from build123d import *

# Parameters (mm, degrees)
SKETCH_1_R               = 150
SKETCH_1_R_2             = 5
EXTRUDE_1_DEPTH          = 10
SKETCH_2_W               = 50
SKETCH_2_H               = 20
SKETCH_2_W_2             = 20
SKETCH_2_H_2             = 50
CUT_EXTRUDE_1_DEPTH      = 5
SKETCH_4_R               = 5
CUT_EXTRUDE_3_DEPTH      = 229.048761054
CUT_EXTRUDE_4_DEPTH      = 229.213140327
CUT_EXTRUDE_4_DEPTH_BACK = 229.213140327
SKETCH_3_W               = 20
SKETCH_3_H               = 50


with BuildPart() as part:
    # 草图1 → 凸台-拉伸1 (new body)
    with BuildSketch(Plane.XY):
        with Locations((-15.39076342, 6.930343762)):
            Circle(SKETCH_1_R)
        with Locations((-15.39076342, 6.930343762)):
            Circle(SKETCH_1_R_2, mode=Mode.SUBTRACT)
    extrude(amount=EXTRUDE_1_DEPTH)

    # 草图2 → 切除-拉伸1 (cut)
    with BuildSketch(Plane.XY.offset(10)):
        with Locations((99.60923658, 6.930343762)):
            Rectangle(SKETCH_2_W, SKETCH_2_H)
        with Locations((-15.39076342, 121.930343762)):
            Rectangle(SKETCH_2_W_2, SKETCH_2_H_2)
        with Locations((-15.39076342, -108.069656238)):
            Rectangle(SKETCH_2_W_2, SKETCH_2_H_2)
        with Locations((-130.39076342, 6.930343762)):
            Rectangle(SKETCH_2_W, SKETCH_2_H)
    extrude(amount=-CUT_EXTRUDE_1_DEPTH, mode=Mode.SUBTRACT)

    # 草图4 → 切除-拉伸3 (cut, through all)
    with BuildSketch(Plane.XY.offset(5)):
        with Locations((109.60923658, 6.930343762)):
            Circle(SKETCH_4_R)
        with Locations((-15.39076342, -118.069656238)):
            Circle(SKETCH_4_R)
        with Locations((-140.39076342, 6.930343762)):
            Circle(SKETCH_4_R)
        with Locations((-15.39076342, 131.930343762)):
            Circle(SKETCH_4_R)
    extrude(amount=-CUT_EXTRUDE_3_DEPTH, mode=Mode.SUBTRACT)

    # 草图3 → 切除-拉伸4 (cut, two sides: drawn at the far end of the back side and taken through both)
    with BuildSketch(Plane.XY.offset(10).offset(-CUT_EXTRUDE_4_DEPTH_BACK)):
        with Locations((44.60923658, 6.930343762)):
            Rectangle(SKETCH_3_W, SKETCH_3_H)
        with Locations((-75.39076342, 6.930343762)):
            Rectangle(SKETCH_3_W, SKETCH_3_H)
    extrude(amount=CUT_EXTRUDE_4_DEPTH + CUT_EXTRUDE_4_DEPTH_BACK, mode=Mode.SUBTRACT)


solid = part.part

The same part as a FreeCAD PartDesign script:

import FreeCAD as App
import Part
import Sketcher
from FreeCAD import Vector

doc = App.newDocument("Part")
body = doc.addObject("PartDesign::Body", "Body")

# Sketch on XY plane
sketch1 = doc.addObject("Sketcher::SketchObject", "Sketch")
body.addObject(sketch1)
sketch1.AttachmentSupport = (doc.XY_Plane, [""])
sketch1.MapMode = "FlatFace"
sketch1.addGeometry([
    Part.Circle(Vector(-15, 7, 0), Vector(0, 0, 1), 150),
    Part.Circle(Vector(-15, 7, 0), Vector(0, 0, 1), 5),
], False)
sketch1.addConstraint([
    Sketcher.Constraint("Coincident", 1, 3, 0, 3),
    Sketcher.Constraint("Diameter", 0, 300.0),
    Sketcher.Constraint("Diameter", 1, 10.0),
    Sketcher.Constraint("DistanceX", 0, 3, -1, 1, 15.390763),
    Sketcher.Constraint("DistanceY", -1, 1, 0, 3, 6.930344),
])
pad1 = doc.addObject("PartDesign::Pad", "Pad")
body.addObject(pad1)
pad1.Profile = sketch1
pad1.Length = 10

# Sketch on XY plane
sketch2 = doc.addObject("Sketcher::SketchObject", "Sketch001")
body.addObject(sketch2)
sketch2.AttachmentSupport = (doc.XY_Plane, [""])
sketch2.MapMode = "FlatFace"
sketch2.AttachmentOffset = App.Placement(Vector(0, 0, 10), App.Rotation())
sketch2.addGeometry([
    Part.LineSegment(Vector(75, 17, 0), Vector(75, -3, 0)),  # 0
    Part.LineSegment(Vector(75, -3, 0), Vector(125, -3, 0)),  # 1
    Part.LineSegment(Vector(125, -3, 0), Vector(125, 17, 0)),  # 2
    Part.LineSegment(Vector(125, 17, 0), Vector(75, 17, 0)),  # 3
    Part.LineSegment(Vector(-25, 147, 0), Vector(-25, 97, 0)),  # 4
    Part.LineSegment(Vector(-25, 97, 0), Vector(-5, 97, 0)),  # 5
    Part.LineSegment(Vector(-5, 97, 0), Vector(-5, 147, 0)),  # 6
    Part.LineSegment(Vector(-5, 147, 0), Vector(-25, 147, 0)),  # 7
    Part.LineSegment(Vector(-25, -83, 0), Vector(-25, -133, 0)),  # 8
    Part.LineSegment(Vector(-25, -133, 0), Vector(-5, -133, 0)),  # 9
    Part.LineSegment(Vector(-5, -133, 0), Vector(-5, -83, 0)),  # 10
    Part.LineSegment(Vector(-5, -83, 0), Vector(-25, -83, 0)),  # 11
    Part.LineSegment(Vector(-155, 17, 0), Vector(-155, -3, 0)),  # 12
    Part.LineSegment(Vector(-155, -3, 0), Vector(-105, -3, 0)),  # 13
    Part.LineSegment(Vector(-105, -3, 0), Vector(-105, 17, 0)),  # 14
    Part.LineSegment(Vector(-105, 17, 0), Vector(-155, 17, 0)),  # 15
], False)
sketch2.addConstraint([
    Sketcher.Constraint("Coincident", 0, 2, 1, 1),
    Sketcher.Constraint("Coincident", 1, 2, 2, 1),
    Sketcher.Constraint("Coincident", 2, 2, 3, 1),
    Sketcher.Constraint("Coincident", 3, 2, 0, 1),
    Sketcher.Constraint("Coincident", 4, 2, 5, 1),
    Sketcher.Constraint("Coincident", 5, 2, 6, 1),
    Sketcher.Constraint("Coincident", 6, 2, 7, 1),
    Sketcher.Constraint("Coincident", 7, 2, 4, 1),
    Sketcher.Constraint("Coincident", 8, 2, 9, 1),
    Sketcher.Constraint("Coincident", 9, 2, 10, 1),
    Sketcher.Constraint("Coincident", 10, 2, 11, 1),
    Sketcher.Constraint("Coincident", 11, 2, 8, 1),
    Sketcher.Constraint("Coincident", 12, 2, 13, 1),
    Sketcher.Constraint("Coincident", 13, 2, 14, 1),
    Sketcher.Constraint("Coincident", 14, 2, 15, 1),
    Sketcher.Constraint("Coincident", 15, 2, 12, 1),
    Sketcher.Constraint("Vertical", 0),
    Sketcher.Constraint("Horizontal", 1),
    Sketcher.Constraint("Vertical", 2),
    Sketcher.Constraint("Horizontal", 3),
    Sketcher.Constraint("Vertical", 4),
    Sketcher.Constraint("Horizontal", 5),
    Sketcher.Constraint("Vertical", 6),
    Sketcher.Constraint("Horizontal", 7),
    Sketcher.Constraint("Vertical", 8),
    Sketcher.Constraint("Horizontal", 9),
    Sketcher.Constraint("Vertical", 10),
    Sketcher.Constraint("Horizontal", 11),
    Sketcher.Constraint("Vertical", 12),
    Sketcher.Constraint("Horizontal", 13),
    Sketcher.Constraint("Vertical", 14),
    Sketcher.Constraint("Horizontal", 15),
    Sketcher.Constraint("Horizontal", 1, 2, 12, 2),
    Sketcher.Constraint("Horizontal", 3, 2, 14, 2),
    Sketcher.Constraint("Vertical", 7, 2, 8, 2),
    Sketcher.Constraint("Vertical", 6, 2, 9, 2),
    Sketcher.Constraint("Equal", 3, 13),
    Sketcher.Constraint("Equal", 11, 0),
    Sketcher.Constraint("Equal", 15, 4),
    Sketcher.Constraint("Equal", 6, 8),
    Sketcher.Constraint("DistanceX", 1, 1, 1, 2, 50.0),
    Sketcher.Constraint("DistanceX", 5, 1, 5, 2, 20.0),
    Sketcher.Constraint("DistanceX", 4, 2, 3, 2, 100.0),
    Sketcher.Constraint("DistanceY", 3, 2, 4, 2, 80.0),
    Sketcher.Constraint("DistanceY", 8, 2, 0, 2, 130.0),
    Sketcher.Constraint("DistanceX", 12, 2, 11, 2, 130.0),
    Sketcher.Constraint("DistanceX", -1, 1, 0, 2, 74.609237),
    Sketcher.Constraint("DistanceY", 0, 2, -1, 1, 3.069656),
])
pocket1 = doc.addObject("PartDesign::Pocket", "Pocket")
body.addObject(pocket1)
pocket1.Profile = sketch2
pocket1.Length = 5

# Sketch on XY plane
sketch3 = doc.addObject("Sketcher::SketchObject", "Sketch002")
body.addObject(sketch3)
sketch3.AttachmentSupport = (doc.XY_Plane, [""])
sketch3.MapMode = "FlatFace"
sketch3.AttachmentOffset = App.Placement(Vector(0, 0, 5), App.Rotation())
sketch3.addGeometry([
    Part.Circle(Vector(110, 7, 0), Vector(0, 0, 1), 5),
    Part.Circle(Vector(-15, -118, 0), Vector(0, 0, 1), 5),
    Part.Circle(Vector(-140, 7, 0), Vector(0, 0, 1), 5),
    Part.Circle(Vector(-15, 132, 0), Vector(0, 0, 1), 5),
], False)
sketch3.addConstraint([
    Sketcher.Constraint("Equal", 0, 1),
    Sketcher.Constraint("Equal", 1, 2),
    Sketcher.Constraint("Equal", 2, 3),
    Sketcher.Constraint("Horizontal", 0, 3, 2, 3),
    Sketcher.Constraint("Vertical", 1, 3, 3, 3),
    Sketcher.Constraint("Diameter", 0, 10.0),
    Sketcher.Constraint("DistanceX", 1, 3, 0, 3, 125.0),
    Sketcher.Constraint("DistanceY", 1, 3, 0, 3, 125.0),
    Sketcher.Constraint("DistanceX", 2, 3, 1, 3, 125.0),
    Sketcher.Constraint("DistanceY", 0, 3, 3, 3, 125.0),
    Sketcher.Constraint("DistanceX", -1, 1, 0, 3, 109.609237),
    Sketcher.Constraint("DistanceY", -1, 1, 0, 3, 6.930344),
])
pocket2 = doc.addObject("PartDesign::Pocket", "Pocket001")
body.addObject(pocket2)
pocket2.Profile = sketch3
pocket2.Type = "ThroughAll"

# Sketch on XY plane
sketch4 = doc.addObject("Sketcher::SketchObject", "Sketch003")
body.addObject(sketch4)
sketch4.AttachmentSupport = (doc.XY_Plane, [""])
sketch4.MapMode = "FlatFace"
sketch4.AttachmentOffset = App.Placement(Vector(0, 0, 10), App.Rotation())
sketch4.addGeometry([
    Part.LineSegment(Vector(35, 32, 0), Vector(35, -18, 0)),  # 0
    Part.LineSegment(Vector(35, -18, 0), Vector(55, -18, 0)),  # 1
    Part.LineSegment(Vector(55, -18, 0), Vector(55, 32, 0)),  # 2
    Part.LineSegment(Vector(55, 32, 0), Vector(35, 32, 0)),  # 3
    Part.LineSegment(Vector(-85, 32, 0), Vector(-85, -18, 0)),  # 4
    Part.LineSegment(Vector(-85, -18, 0), Vector(-65, -18, 0)),  # 5
    Part.LineSegment(Vector(-65, -18, 0), Vector(-65, 32, 0)),  # 6
    Part.LineSegment(Vector(-65, 32, 0), Vector(-85, 32, 0)),  # 7
], False)
sketch4.addConstraint([
    Sketcher.Constraint("Coincident", 0, 2, 1, 1),
    Sketcher.Constraint("Coincident", 1, 2, 2, 1),
    Sketcher.Constraint("Coincident", 2, 2, 3, 1),
    Sketcher.Constraint("Coincident", 3, 2, 0, 1),
    Sketcher.Constraint("Coincident", 4, 2, 5, 1),
    Sketcher.Constraint("Coincident", 5, 2, 6, 1),
    Sketcher.Constraint("Coincident", 6, 2, 7, 1),
    Sketcher.Constraint("Coincident", 7, 2, 4, 1),
    Sketcher.Constraint("Vertical", 0),
    Sketcher.Constraint("Horizontal", 1),
    Sketcher.Constraint("Vertical", 2),
    Sketcher.Constraint("Horizontal", 3),
    Sketcher.Constraint("Vertical", 4),
    Sketcher.Constraint("Horizontal", 5),
    Sketcher.Constraint("Vertical", 6),
    Sketcher.Constraint("Horizontal", 7),
    Sketcher.Constraint("Horizontal", 1, 2, 4, 2),
    Sketcher.Constraint("Horizontal", 3, 2, 6, 2),
    Sketcher.Constraint("Equal", 3, 5),
    Sketcher.Constraint("DistanceX", 1, 1, 1, 2, 20.0),
    Sketcher.Constraint("DistanceY", 0, 2, 0, 1, 50.0),
    Sketcher.Constraint("DistanceX", 4, 2, 0, 2, 120.0),
    Sketcher.Constraint("DistanceX", -1, 1, 0, 2, 34.609237),
    Sketcher.Constraint("DistanceY", 0, 2, -1, 1, 18.069656),
])
pocket3 = doc.addObject("PartDesign::Pocket", "Pocket002")
body.addObject(pocket3)
pocket3.Profile = sketch4
pocket3.Type = "ThroughAll"
pocket3.Midplane = True

doc.recompute()
